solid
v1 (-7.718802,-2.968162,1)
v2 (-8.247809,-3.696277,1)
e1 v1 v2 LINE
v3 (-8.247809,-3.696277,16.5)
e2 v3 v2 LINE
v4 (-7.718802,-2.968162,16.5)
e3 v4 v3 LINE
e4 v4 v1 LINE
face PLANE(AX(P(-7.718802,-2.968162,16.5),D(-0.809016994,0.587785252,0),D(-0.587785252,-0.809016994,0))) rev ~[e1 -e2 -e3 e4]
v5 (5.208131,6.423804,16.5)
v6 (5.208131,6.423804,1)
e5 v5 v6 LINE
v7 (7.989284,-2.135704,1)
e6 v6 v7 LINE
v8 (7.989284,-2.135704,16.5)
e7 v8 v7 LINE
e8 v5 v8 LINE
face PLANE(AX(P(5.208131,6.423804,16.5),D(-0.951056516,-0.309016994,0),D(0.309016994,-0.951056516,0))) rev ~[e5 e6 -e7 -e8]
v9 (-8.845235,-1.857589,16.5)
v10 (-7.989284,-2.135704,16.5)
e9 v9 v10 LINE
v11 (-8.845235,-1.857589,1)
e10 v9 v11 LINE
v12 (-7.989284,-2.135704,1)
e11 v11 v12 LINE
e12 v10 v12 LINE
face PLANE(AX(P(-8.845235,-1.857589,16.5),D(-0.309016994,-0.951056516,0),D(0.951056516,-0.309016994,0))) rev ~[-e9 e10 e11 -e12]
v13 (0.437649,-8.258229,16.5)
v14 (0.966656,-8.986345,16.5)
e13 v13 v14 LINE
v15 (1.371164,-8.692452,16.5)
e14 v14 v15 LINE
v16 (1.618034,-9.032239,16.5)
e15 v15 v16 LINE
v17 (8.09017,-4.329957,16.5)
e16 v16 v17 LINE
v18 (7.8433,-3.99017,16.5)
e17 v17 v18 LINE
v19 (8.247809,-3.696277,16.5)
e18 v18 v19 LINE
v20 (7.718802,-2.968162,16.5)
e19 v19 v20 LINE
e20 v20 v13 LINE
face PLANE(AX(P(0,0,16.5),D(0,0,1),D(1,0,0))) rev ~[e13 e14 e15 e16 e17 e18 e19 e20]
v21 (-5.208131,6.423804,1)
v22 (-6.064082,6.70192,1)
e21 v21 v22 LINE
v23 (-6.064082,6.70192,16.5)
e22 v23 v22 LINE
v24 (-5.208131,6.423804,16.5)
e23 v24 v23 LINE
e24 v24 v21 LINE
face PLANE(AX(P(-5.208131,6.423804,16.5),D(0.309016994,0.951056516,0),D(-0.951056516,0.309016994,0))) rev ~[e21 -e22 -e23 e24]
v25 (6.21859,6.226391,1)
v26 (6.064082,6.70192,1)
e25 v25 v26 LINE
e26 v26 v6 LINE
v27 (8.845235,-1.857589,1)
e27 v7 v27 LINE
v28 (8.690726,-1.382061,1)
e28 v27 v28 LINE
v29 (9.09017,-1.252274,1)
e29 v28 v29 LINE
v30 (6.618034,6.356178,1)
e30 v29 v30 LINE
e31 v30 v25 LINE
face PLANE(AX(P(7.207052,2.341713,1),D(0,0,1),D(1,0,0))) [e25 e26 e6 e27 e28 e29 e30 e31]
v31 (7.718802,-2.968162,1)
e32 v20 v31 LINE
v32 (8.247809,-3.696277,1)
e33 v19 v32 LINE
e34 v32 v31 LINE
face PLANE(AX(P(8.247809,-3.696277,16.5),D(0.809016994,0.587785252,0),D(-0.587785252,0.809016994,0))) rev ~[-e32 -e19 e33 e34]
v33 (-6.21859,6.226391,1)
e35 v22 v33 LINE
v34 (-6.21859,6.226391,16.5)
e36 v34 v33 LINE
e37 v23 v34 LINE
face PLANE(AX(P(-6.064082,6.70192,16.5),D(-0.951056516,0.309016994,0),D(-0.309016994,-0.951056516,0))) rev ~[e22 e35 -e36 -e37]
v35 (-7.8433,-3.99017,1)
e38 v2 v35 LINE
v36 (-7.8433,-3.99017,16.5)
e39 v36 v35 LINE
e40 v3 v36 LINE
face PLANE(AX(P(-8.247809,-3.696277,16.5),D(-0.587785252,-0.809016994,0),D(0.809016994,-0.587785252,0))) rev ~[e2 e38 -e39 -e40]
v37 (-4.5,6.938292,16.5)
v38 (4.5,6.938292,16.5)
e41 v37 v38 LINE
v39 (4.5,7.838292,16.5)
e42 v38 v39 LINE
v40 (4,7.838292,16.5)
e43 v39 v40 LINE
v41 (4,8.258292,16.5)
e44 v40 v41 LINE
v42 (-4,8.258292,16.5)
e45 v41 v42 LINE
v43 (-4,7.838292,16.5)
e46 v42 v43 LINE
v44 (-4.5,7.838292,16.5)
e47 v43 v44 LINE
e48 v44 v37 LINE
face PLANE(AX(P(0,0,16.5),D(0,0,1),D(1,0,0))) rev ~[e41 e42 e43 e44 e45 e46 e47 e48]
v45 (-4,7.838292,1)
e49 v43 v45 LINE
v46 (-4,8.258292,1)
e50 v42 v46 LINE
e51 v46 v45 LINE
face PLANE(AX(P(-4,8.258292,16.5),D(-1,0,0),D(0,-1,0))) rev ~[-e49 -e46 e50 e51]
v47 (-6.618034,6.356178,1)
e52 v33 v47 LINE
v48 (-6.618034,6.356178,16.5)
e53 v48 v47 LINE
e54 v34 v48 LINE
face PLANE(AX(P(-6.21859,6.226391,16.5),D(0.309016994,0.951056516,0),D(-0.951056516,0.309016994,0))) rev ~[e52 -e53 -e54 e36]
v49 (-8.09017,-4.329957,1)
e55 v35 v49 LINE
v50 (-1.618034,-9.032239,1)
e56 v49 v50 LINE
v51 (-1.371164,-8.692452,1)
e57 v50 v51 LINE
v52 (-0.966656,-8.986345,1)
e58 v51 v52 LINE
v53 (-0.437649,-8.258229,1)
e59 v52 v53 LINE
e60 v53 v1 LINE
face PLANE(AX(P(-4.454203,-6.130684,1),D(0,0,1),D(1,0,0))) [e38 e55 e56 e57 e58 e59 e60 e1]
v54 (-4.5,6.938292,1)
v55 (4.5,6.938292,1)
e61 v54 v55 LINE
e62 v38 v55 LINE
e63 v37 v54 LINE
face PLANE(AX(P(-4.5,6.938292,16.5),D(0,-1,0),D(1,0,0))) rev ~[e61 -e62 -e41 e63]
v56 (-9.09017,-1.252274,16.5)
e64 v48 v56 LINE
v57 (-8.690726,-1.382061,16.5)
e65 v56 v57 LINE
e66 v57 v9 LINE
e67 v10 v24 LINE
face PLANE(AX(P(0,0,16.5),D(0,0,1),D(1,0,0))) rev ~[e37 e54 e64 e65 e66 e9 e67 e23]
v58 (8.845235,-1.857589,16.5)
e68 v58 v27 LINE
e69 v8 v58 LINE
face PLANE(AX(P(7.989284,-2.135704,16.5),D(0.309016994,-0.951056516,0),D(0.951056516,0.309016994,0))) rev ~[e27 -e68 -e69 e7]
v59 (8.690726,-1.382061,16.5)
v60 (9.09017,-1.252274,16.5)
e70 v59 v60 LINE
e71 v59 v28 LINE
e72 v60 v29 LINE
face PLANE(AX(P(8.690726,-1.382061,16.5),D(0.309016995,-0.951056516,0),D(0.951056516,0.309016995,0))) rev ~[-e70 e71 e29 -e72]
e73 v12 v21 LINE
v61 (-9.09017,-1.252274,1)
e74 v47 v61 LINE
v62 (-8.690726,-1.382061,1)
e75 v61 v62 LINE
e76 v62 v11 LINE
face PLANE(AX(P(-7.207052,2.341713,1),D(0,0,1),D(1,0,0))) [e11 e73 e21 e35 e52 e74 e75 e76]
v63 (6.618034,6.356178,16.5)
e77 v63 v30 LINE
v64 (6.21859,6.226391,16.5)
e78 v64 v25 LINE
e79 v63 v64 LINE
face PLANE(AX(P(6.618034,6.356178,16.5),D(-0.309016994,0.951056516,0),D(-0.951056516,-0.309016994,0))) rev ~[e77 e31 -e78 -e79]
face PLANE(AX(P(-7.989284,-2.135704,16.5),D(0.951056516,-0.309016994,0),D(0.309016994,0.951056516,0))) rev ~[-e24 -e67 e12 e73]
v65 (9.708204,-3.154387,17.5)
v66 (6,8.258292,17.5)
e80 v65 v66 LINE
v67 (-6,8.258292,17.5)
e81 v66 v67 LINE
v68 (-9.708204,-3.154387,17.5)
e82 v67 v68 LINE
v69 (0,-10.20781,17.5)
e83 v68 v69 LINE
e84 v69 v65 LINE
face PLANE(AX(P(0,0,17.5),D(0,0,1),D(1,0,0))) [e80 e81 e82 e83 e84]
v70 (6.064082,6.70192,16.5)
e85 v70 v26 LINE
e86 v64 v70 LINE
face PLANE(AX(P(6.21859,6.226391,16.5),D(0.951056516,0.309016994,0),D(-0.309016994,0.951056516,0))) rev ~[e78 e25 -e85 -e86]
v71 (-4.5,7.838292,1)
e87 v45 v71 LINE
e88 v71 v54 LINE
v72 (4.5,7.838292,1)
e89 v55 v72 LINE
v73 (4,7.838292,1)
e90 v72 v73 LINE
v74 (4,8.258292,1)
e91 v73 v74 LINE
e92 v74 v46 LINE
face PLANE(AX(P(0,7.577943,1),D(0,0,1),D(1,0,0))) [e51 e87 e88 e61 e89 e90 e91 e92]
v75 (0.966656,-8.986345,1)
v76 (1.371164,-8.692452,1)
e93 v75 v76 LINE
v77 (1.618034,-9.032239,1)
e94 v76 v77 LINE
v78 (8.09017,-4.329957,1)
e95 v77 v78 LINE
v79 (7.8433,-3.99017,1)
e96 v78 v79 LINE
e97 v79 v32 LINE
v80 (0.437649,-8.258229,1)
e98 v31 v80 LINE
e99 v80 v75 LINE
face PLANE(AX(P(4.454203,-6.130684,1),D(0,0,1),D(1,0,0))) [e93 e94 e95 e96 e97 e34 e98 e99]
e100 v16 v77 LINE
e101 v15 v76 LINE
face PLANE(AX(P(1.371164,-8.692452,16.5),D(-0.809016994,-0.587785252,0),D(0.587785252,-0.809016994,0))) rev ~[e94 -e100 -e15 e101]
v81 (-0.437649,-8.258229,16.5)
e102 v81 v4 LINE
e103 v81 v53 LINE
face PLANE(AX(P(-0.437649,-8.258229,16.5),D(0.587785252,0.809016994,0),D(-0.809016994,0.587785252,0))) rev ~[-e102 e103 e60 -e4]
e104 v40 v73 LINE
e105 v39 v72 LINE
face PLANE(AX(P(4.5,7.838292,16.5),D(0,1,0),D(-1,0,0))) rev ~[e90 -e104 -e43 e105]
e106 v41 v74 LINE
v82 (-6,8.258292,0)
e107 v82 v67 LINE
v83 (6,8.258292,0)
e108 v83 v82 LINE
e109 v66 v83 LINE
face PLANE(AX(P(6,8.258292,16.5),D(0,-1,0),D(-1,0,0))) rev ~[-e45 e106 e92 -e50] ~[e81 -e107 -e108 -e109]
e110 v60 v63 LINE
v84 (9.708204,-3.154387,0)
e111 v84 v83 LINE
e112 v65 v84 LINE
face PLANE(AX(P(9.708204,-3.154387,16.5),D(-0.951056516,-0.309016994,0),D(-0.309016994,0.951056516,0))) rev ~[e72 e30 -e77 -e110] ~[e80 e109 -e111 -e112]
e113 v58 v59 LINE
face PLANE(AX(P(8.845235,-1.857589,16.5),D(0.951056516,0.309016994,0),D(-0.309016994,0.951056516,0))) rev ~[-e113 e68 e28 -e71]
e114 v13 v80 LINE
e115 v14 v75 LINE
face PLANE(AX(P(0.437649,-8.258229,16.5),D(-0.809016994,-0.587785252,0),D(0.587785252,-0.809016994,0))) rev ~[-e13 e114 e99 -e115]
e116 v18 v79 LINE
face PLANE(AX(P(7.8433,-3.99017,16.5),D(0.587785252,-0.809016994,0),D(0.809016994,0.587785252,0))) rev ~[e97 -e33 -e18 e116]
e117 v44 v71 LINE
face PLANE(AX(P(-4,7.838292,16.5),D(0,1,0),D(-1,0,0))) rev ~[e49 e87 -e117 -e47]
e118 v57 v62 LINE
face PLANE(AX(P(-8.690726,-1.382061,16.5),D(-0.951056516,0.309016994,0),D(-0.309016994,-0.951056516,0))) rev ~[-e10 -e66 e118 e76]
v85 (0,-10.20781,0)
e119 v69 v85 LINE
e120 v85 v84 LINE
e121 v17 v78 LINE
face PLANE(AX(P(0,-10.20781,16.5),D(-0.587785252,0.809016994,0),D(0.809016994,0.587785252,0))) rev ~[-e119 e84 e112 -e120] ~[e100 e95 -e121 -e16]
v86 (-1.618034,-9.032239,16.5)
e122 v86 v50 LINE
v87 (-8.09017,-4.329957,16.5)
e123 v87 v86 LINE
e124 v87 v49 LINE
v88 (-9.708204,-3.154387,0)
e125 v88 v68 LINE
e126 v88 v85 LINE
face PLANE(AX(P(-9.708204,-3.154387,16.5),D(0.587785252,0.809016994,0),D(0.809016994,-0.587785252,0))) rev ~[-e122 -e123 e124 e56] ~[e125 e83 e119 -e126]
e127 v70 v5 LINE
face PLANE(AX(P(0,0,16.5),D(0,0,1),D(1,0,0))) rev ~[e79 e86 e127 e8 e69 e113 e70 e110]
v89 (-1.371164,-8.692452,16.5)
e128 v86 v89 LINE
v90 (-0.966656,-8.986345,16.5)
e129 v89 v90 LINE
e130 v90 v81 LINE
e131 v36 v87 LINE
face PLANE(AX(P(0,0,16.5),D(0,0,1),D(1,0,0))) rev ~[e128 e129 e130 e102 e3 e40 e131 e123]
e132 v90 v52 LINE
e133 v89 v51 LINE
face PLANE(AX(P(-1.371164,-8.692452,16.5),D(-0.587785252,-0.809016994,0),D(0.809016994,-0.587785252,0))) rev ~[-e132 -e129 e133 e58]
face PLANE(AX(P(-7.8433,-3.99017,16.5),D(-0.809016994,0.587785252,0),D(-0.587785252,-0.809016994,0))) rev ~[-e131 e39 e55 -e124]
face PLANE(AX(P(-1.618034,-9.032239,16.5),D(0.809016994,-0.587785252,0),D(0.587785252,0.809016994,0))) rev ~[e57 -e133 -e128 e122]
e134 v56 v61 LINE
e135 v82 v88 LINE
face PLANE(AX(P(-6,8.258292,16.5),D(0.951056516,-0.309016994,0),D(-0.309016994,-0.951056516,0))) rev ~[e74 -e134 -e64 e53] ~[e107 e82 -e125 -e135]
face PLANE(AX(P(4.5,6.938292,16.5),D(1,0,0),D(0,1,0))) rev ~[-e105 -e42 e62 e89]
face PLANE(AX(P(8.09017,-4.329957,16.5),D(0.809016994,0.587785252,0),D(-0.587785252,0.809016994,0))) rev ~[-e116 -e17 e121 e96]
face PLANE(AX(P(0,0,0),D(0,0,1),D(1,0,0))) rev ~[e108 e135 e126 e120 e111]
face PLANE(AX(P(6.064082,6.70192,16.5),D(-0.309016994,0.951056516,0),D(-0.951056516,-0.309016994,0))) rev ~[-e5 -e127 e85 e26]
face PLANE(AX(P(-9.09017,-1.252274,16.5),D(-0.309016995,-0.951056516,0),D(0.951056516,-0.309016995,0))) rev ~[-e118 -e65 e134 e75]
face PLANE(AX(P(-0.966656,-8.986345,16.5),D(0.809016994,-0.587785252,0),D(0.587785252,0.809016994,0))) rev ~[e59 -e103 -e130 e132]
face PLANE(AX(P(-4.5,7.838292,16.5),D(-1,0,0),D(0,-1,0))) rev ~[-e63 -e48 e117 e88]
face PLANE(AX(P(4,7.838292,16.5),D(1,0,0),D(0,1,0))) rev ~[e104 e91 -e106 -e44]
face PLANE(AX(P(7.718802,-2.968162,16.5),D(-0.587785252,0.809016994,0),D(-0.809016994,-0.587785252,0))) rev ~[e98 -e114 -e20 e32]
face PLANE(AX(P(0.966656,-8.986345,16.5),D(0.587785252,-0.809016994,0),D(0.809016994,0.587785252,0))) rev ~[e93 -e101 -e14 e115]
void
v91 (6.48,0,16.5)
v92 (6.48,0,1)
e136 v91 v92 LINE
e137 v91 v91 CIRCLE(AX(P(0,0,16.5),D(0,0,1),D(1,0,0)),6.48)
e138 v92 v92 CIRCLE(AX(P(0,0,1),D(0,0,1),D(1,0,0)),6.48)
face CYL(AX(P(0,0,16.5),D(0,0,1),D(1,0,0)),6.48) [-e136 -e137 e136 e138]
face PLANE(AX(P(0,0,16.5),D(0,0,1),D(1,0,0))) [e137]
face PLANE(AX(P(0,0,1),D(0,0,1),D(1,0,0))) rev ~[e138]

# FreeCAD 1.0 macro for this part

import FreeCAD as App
import Part
import Sketcher

V = App.Vector
Q = App.Units.Quantity


def add_polygon(sketch, points):
    """Adds a closed chain of lines whose ends are joined by coincident constraints."""
    first, n = sketch.GeometryCount, len(points)
    for a, b in zip(points, points[1:] + points[:1]):
        sketch.addGeometry(Part.LineSegment(App.Vector(*a, 0), App.Vector(*b, 0)), False)
    for i in range(n):
        sketch.addConstraint(Sketcher.Constraint("Coincident", first + i, 2, first + (i + 1) % n, 1))

doc = App.newDocument("Part")
body = doc.addObject("PartDesign::Body", "Body")

# Sketch on XY plane
sketch1 = body.newObject("Sketcher::SketchObject", "Sketch")
sketch1.AttachmentSupport = (doc.getObject("XY_Plane"), [""])
sketch1.MapMode = "FlatFace"
add_polygon(sketch1, [(6, 8), (-6, 8), (-10, -3), (0, -10), (10, -3)])  # lines 0-4
sketch1.addConstraint([
    Sketcher.Constraint("Horizontal", 0),
    Sketcher.Constraint("Symmetric", 1, 2, 3, 2, -2),
    Sketcher.Constraint("PointOnObject", 2, 2, -2),
    Sketcher.Constraint("Equal", 1, 2),
    Sketcher.Constraint("Equal", 3, 4),
    Sketcher.Constraint("DistanceX", 0, 2, 0, 1, 12.0),
    Sketcher.Constraint("Angle", 1, Q("-108 deg")),
    Sketcher.Constraint("Angle", 2, Q("-36 deg")),
    Sketcher.Constraint("DistanceY", -1, 1, 0, 2, 8.258292),
])
pad1 = body.newObject("PartDesign::Pad", "Pad")
pad1.Profile = sketch1
pad1.Length = 16.5

# Sketch on XY plane
sketch2 = body.newObject("Sketcher::SketchObject", "Sketch001")
sketch2.AttachmentSupport = (doc.getObject("XY_Plane"), [""])
sketch2.MapMode = "FlatFace"
sketch2.AttachmentOffset = App.Placement(V(0, 0, 16.5), App.Rotation())
add_polygon(sketch2, [(-7.84, -3.99), (-8.09, -4.33), (-1.62, -9.03), (-1.37, -8.69), (-0.97, -8.99), (-0.44, -8.26), (-7.72, -2.97), (-8.25, -3.7)])  # lines 0-7
add_polygon(sketch2, [(-6.62, 6.36), (-9.09, -1.25), (-8.69, -1.38), (-8.85, -1.86), (-7.99, -2.14), (-5.21, 6.42), (-6.06, 6.7), (-6.22, 6.23)])  # lines 8-15
add_polygon(sketch2, [(1.62, -9.03), (8.09, -4.33), (7.84, -3.99), (8.25, -3.7), (7.72, -2.97), (0.44, -8.26), (0.97, -8.99), (1.37, -8.69)])  # lines 16-23
add_polygon(sketch2, [(4, 8.26), (-4, 8.26), (-4, 7.84), (-4.5, 7.84), (-4.5, 6.94), (4.5, 6.94), (4.5, 7.84), (4, 7.84)])  # lines 24-31
add_polygon(sketch2, [(9.09, -1.25), (6.62, 6.36), (6.22, 6.23), (6.06, 6.7), (5.21, 6.42), (7.99, -2.14), (8.85, -1.86), (8.69, -1.38)])  # lines 32-39
sketch2.addGeometry(Part.Circle(V(0, 0, 0), V(0, 0, 1), 6.48), False)  # 40
sketch2.addConstraint([
    Sketcher.Constraint("Horizontal", 24),
    Sketcher.Constraint("Vertical", 25),
    Sketcher.Constraint("Horizontal", 26),
    Sketcher.Constraint("Vertical", 27),
    Sketcher.Constraint("Horizontal", 28),
    Sketcher.Constraint("Vertical", 29),
    Sketcher.Constraint("Horizontal", 30),
    Sketcher.Constraint("Vertical", 31),
    Sketcher.Constraint("Coincident", 40, 3, -1, 1),
    Sketcher.Constraint("Symmetric", 0, 2, 16, 2, -2),
    Sketcher.Constraint("Symmetric", 7, 2, 17, 2, -2),
    Sketcher.Constraint("Symmetric", 6, 2, 18, 2, -2),
    Sketcher.Constraint("Symmetric", 5, 2, 19, 2, -2),
    Sketcher.Constraint("Symmetric", 4, 2, 20, 2, -2),
    Sketcher.Constraint("Symmetric", 3, 2, 21, 2, -2),
    Sketcher.Constraint("Symmetric", 2, 2, 22, 2, -2),
    Sketcher.Constraint("Symmetric", 1, 2, 23, 2, -2),
    Sketcher.Constraint("Symmetric", 26, 2, 29, 2, -2),
    Sketcher.Constraint("Symmetric", 15, 2, 32, 2, -2),
    Sketcher.Constraint("Symmetric", 14, 2, 33, 2, -2),
    Sketcher.Constraint("Symmetric", 13, 2, 34, 2, -2),
    Sketcher.Constraint("Symmetric", 12, 2, 35, 2, -2),
    Sketcher.Constraint("Symmetric", 11, 2, 36, 2, -2),
    Sketcher.Constraint("Symmetric", 10, 2, 37, 2, -2),
    Sketcher.Constraint("Symmetric", 9, 2, 38, 2, -2),
    Sketcher.Constraint("Symmetric", 8, 2, 39, 2, -2),
    Sketcher.Constraint("Perpendicular", 0, 1),
    Sketcher.Constraint("Perpendicular", 1, 2),
    Sketcher.Constraint("Perpendicular", 2, 3),
    Sketcher.Constraint("Perpendicular", 3, 4),
    Sketcher.Constraint("Perpendicular", 4, 5),
    Sketcher.Constraint("Perpendicular", 5, 6),
    Sketcher.Constraint("Perpendicular", 6, 7),
    Sketcher.Constraint("Perpendicular", 8, 9),
    Sketcher.Constraint("Perpendicular", 9, 10),
    Sketcher.Constraint("Perpendicular", 10, 11),
    Sketcher.Constraint("Perpendicular", 11, 12),
    Sketcher.Constraint("Perpendicular", 12, 13),
    Sketcher.Constraint("Perpendicular", 13, 14),
    Sketcher.Constraint("Perpendicular", 14, 15),
    Sketcher.Constraint("Equal", 26, 30),
    Sketcher.Constraint("Equal", 0, 2),
    Sketcher.Constraint("Equal", 3, 7),
    Sketcher.Constraint("Equal", 1, 8),
    Sketcher.Constraint("Equal", 2, 9),
    Sketcher.Constraint("Equal", 7, 10),
    Sketcher.Constraint("Equal", 6, 11),
    Sketcher.Constraint("Equal", 5, 12),
    Sketcher.Constraint("Equal", 11, 13),
    Sketcher.Constraint("Diameter", 40, 12.96),
    Sketcher.Constraint("DistanceX", 24, 2, 24, 1, 8.0),
    Sketcher.Constraint("DistanceX", 28, 1, 28, 2, 9.0),
    Sketcher.Constraint("Angle", 0, Q("-126 deg")),
    Sketcher.Constraint("Angle", 8, Q("-108 deg")),
    Sketcher.Constraint("Distance", 1, 8.0),
    Sketcher.Constraint("Distance", 5, 9.0),
    Sketcher.Constraint("DistanceY", 27, 2, 27, 1, 0.9),
    Sketcher.Constraint("DistanceX", 8, 2, 0, 2, 1.0),
    Sketcher.Constraint("Distance", 4, 0.9),
    Sketcher.Constraint("DistanceY", 25, 2, 25, 1, 0.42),
    Sketcher.Constraint("Distance", 0, 0.42),
    Sketcher.Constraint("DistanceX", 5, 2, -1, 1, 7.718802),
    Sketcher.Constraint("DistanceY", 5, 2, 9, 2, 1.586101),
    Sketcher.Constraint("DistanceY", 14, 2, 24, 2, 2.0319),
    Sketcher.Constraint("DistanceY", 1, 2, -1, 1, 9.032239),
])
pocket1 = body.newObject("PartDesign::Pocket", "Pocket")
pocket1.Profile = sketch2
pocket1.Length = 15.5

# Sketch on XY plane
sketch3 = body.newObject("Sketcher::SketchObject", "Sketch002")
sketch3.AttachmentSupport = (doc.getObject("XY_Plane"), [""])
sketch3.MapMode = "FlatFace"
sketch3.AttachmentOffset = App.Placement(V(0, 0, 16.5), App.Rotation())
add_polygon(sketch3, [(6, 8), (-6, 8), (-10, -3), (0, -10), (10, -3)])  # lines 0-4
sketch3.addConstraint([
    Sketcher.Constraint("Horizontal", 0),
    Sketcher.Constraint("Symmetric", 1, 2, 3, 2, -2),
    Sketcher.Constraint("PointOnObject", 2, 2, -2),
    Sketcher.Constraint("Equal", 1, 2),
    Sketcher.Constraint("Equal", 3, 4),
    Sketcher.Constraint("DistanceX", 0, 2, 0, 1, 12.0),
    Sketcher.Constraint("Angle", 1, Q("-108 deg")),
    Sketcher.Constraint("Angle", 2, Q("-36 deg")),
    Sketcher.Constraint("DistanceY", -1, 1, 0, 2, 8.258292),
])
pad2 = body.newObject("PartDesign::Pad", "Pad001")
pad2.Profile = sketch3
pad2.Length = 1

# Sketch on XY plane
sketch4 = body.newObject("Sketcher::SketchObject", "Sketch003")
sketch4.AttachmentSupport = (doc.getObject("XY_Plane"), [""])
sketch4.MapMode = "FlatFace"
sketch4.AttachmentOffset = App.Placement(V(0, 0, 16.5), App.Rotation())
add_polygon(sketch4, [(-7.84, -3.99), (-8.09, -4.33), (-1.62, -9.03), (-1.37, -8.69), (-0.97, -8.99), (-0.44, -8.26), (-7.72, -2.97), (-8.25, -3.7)])  # lines 0-7
add_polygon(sketch4, [(-6.62, 6.36), (-9.09, -1.25), (-8.69, -1.38), (-8.85, -1.86), (-7.99, -2.14), (-5.21, 6.42), (-6.06, 6.7), (-6.22, 6.23)])  # lines 8-15
add_polygon(sketch4, [(1.62, -9.03), (8.09, -4.33), (7.84, -3.99), (8.25, -3.7), (7.72, -2.97), (0.44, -8.26), (0.97, -8.99), (1.37, -8.69)])  # lines 16-23
add_polygon(sketch4, [(4, 8.26), (-4, 8.26), (-4, 7.84), (-4.5, 7.84), (-4.5, 6.94), (4.5, 6.94), (4.5, 7.84), (4, 7.84)])  # lines 24-31
add_polygon(sketch4, [(9.09, -1.25), (6.62, 6.36), (6.22, 6.23), (6.06, 6.7), (5.21, 6.42), (7.99, -2.14), (8.85, -1.86), (8.69, -1.38)])  # lines 32-39
sketch4.addGeometry(Part.Circle(V(0, 0, 0), V(0, 0, 1), 6.48), False)  # 40
sketch4.addConstraint([
    Sketcher.Constraint("Horizontal", 24),
    Sketcher.Constraint("Vertical", 25),
    Sketcher.Constraint("Horizontal", 26),
    Sketcher.Constraint("Vertical", 27),
    Sketcher.Constraint("Horizontal", 28),
    Sketcher.Constraint("Vertical", 29),
    Sketcher.Constraint("Horizontal", 30),
    Sketcher.Constraint("Vertical", 31),
    Sketcher.Constraint("Coincident", 40, 3, -1, 1),
    Sketcher.Constraint("Symmetric", 0, 2, 16, 2, -2),
    Sketcher.Constraint("Symmetric", 7, 2, 17, 2, -2),
    Sketcher.Constraint("Symmetric", 6, 2, 18, 2, -2),
    Sketcher.Constraint("Symmetric", 5, 2, 19, 2, -2),
    Sketcher.Constraint("Symmetric", 4, 2, 20, 2, -2),
    Sketcher.Constraint("Symmetric", 3, 2, 21, 2, -2),
    Sketcher.Constraint("Symmetric", 2, 2, 22, 2, -2),
    Sketcher.Constraint("Symmetric", 1, 2, 23, 2, -2),
    Sketcher.Constraint("Symmetric", 26, 2, 29, 2, -2),
    Sketcher.Constraint("Symmetric", 15, 2, 32, 2, -2),
    Sketcher.Constraint("Symmetric", 14, 2, 33, 2, -2),
    Sketcher.Constraint("Symmetric", 13, 2, 34, 2, -2),
    Sketcher.Constraint("Symmetric", 12, 2, 35, 2, -2),
    Sketcher.Constraint("Symmetric", 11, 2, 36, 2, -2),
    Sketcher.Constraint("Symmetric", 10, 2, 37, 2, -2),
    Sketcher.Constraint("Symmetric", 9, 2, 38, 2, -2),
    Sketcher.Constraint("Symmetric", 8, 2, 39, 2, -2),
    Sketcher.Constraint("Perpendicular", 0, 1),
    Sketcher.Constraint("Perpendicular", 1, 2),
    Sketcher.Constraint("Perpendicular", 2, 3),
    Sketcher.Constraint("Perpendicular", 3, 4),
    Sketcher.Constraint("Perpendicular", 4, 5),
    Sketcher.Constraint("Perpendicular", 5, 6),
    Sketcher.Constraint("Perpendicular", 6, 7),
    Sketcher.Constraint("Perpendicular", 8, 9),
    Sketcher.Constraint("Perpendicular", 9, 10),
    Sketcher.Constraint("Perpendicular", 10, 11),
    Sketcher.Constraint("Perpendicular", 11, 12),
    Sketcher.Constraint("Perpendicular", 12, 13),
    Sketcher.Constraint("Perpendicular", 13, 14),
    Sketcher.Constraint("Perpendicular", 14, 15),
    Sketcher.Constraint("Equal", 26, 30),
    Sketcher.Constraint("Equal", 0, 2),
    Sketcher.Constraint("Equal", 3, 7),
    Sketcher.Constraint("Equal", 1, 8),
    Sketcher.Constraint("Equal", 2, 9),
    Sketcher.Constraint("Equal", 7, 10),
    Sketcher.Constraint("Equal", 6, 11),
    Sketcher.Constraint("Equal", 5, 12),
    Sketcher.Constraint("Equal", 11, 13),
    Sketcher.Constraint("Diameter", 40, 12.96),
    Sketcher.Constraint("DistanceX", 24, 2, 24, 1, 8.0),
    Sketcher.Constraint("DistanceX", 28, 1, 28, 2, 9.0),
    Sketcher.Constraint("Angle", 0, Q("-126 deg")),
    Sketcher.Constraint("Angle", 8, Q("-108 deg")),
    Sketcher.Constraint("Distance", 1, 8.0),
    Sketcher.Constraint("Distance", 5, 9.0),
    Sketcher.Constraint("DistanceY", 27, 2, 27, 1, 0.9),
    Sketcher.Constraint("DistanceX", 8, 2, 0, 2, 1.0),
    Sketcher.Constraint("Distance", 4, 0.9),
    Sketcher.Constraint("DistanceY", 25, 2, 25, 1, 0.42),
    Sketcher.Constraint("Distance", 0, 0.42),
    Sketcher.Constraint("DistanceX", 5, 2, -1, 1, 7.718802),
    Sketcher.Constraint("DistanceY", 5, 2, 9, 2, 1.586101),
    Sketcher.Constraint("DistanceY", 14, 2, 24, 2, 2.0319),
    Sketcher.Constraint("DistanceY", 1, 2, -1, 1, 9.032239),
])
pocket2 = body.newObject("PartDesign::Pocket", "Pocket001")
pocket2.Profile = sketch4
pocket2.Length = 15.5

doc.recompute()
